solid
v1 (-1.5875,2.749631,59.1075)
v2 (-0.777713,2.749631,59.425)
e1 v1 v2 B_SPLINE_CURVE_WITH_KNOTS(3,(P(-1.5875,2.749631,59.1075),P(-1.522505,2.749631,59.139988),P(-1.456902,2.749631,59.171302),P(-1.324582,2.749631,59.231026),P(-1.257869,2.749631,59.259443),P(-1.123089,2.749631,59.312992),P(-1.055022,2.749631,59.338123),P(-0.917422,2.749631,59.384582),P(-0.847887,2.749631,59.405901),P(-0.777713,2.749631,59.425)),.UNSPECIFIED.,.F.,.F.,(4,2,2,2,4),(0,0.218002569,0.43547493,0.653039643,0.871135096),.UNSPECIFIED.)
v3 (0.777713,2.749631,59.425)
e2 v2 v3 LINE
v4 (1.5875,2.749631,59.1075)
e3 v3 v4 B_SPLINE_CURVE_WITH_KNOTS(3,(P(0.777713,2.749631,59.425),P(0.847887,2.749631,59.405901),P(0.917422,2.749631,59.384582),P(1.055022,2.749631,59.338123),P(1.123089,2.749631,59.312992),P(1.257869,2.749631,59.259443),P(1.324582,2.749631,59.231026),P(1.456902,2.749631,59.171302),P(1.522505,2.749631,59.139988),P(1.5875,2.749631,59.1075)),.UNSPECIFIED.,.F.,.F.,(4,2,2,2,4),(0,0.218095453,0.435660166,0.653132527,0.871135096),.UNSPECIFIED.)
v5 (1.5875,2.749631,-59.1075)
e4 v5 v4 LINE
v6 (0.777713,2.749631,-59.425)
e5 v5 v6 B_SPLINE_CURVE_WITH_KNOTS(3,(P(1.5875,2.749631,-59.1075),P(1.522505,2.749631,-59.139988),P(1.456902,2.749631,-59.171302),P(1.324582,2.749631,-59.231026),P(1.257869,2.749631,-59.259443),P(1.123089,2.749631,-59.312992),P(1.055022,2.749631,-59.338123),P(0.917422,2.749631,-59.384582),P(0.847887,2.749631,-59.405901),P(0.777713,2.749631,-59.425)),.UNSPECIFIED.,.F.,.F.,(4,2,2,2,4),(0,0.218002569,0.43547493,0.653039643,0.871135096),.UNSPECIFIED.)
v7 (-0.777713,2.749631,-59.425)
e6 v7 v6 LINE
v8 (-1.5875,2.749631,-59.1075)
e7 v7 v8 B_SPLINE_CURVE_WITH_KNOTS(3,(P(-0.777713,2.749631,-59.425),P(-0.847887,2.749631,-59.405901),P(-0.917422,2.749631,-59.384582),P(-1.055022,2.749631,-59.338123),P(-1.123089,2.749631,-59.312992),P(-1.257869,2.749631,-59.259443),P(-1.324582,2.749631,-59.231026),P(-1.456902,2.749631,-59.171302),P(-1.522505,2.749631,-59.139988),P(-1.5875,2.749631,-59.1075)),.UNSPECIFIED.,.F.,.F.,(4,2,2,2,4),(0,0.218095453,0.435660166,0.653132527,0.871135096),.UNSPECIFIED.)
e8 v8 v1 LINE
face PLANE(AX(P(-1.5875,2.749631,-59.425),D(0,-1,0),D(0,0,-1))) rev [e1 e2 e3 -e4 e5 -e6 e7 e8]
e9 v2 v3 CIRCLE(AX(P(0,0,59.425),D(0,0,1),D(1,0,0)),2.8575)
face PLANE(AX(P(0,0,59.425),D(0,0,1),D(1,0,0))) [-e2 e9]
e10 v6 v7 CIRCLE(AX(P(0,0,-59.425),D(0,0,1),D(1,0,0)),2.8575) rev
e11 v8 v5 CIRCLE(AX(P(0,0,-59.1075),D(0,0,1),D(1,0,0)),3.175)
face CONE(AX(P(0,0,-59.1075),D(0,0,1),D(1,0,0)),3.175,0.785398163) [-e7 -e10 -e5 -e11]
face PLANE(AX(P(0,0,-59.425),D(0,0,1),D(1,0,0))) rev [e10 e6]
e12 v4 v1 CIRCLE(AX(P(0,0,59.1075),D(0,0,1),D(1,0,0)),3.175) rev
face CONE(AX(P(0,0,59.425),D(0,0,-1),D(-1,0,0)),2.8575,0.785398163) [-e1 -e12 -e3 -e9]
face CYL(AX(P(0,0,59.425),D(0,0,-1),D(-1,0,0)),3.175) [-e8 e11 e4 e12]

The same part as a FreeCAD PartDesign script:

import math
import FreeCAD as App
import Part
import Sketcher

V = App.Vector
Q = App.Units.Quantity


def edges_at(feature, points):
    """Names of the edges that pass closest to the given points."""
    edges = feature.Shape.Edges
    near = lambda p: min(range(len(edges)), key=lambda i: edges[i].distToShape(Part.Vertex(*p))[0])
    return sorted({f"Edge{near(p) + 1}" for p in points})

doc = App.newDocument("Part")
body = doc.addObject("PartDesign::Body", "Body")

# Sketch on XY plane
sketch1 = body.newObject("Sketcher::SketchObject", "Sketch")
sketch1.AttachmentSupport = (doc.getObject("XY_Plane"), [""])
sketch1.MapMode = "FlatFace"
sketch1.addGeometry(Part.Circle(V(0, 0, 0), V(0, 0, 1), 3.2), False)
sketch1.addConstraint(Sketcher.Constraint("Coincident", 0, 3, -1, 1))
sketch1.addConstraint(Sketcher.Constraint("Diameter", 0, Q("0.25 in")))
pad1 = body.newObject("PartDesign::Pad", "Pad")
pad1.Profile = sketch1
pad1.Type = "TwoLengths"
pad1.Length = 59.425
pad1.Length2 = 59.425

# Sketch on XY plane
sketch2 = body.newObject("Sketcher::SketchObject", "Sketch001")
sketch2.AttachmentSupport = (doc.getObject("XY_Plane"), [""])
sketch2.MapMode = "FlatFace"
sketch2.addGeometry(Part.LineSegment(V(-1.6, 2.7, 0), V(1.6, 2.7, 0)), False)
sketch2.addGeometry(Part.ArcOfCircle(Part.Circle(V(0, 0, 0), V(0, 0, 1), 3.2), math.radians(60), math.radians(120)), False)
sketch2.addConstraint(Sketcher.Constraint("Coincident", 0, 1, 1, 2))
sketch2.addConstraint(Sketcher.Constraint("Coincident", 1, 1, 0, 2))
sketch2.addConstraint(Sketcher.Constraint("Horizontal", 0))
sketch2.addConstraint(Sketcher.Constraint("Coincident", 1, 3, -1, 1))
sketch2.addConstraint(Sketcher.Constraint("Radius", 1, Q("0.125 in")))
sketch2.addConstraint(Sketcher.Constraint("DistanceX", 0, 1, 0, 2, Q("0.125 in")))
pocket1 = body.newObject("PartDesign::Pocket", "Pocket")
pocket1.Profile = sketch2
pocket1.Type = "ThroughAll"
pocket1.Midplane = True
doc.recompute()

chamfer = body.newObject("PartDesign::Chamfer", "Chamfer")
chamfer.Base = (pocket1, edges_at(pocket1, [(0, -3.175, -59.425), (0, -3.175, 59.425)]))
chamfer.Size = Q("0.0125 in")

doc.recompute()
